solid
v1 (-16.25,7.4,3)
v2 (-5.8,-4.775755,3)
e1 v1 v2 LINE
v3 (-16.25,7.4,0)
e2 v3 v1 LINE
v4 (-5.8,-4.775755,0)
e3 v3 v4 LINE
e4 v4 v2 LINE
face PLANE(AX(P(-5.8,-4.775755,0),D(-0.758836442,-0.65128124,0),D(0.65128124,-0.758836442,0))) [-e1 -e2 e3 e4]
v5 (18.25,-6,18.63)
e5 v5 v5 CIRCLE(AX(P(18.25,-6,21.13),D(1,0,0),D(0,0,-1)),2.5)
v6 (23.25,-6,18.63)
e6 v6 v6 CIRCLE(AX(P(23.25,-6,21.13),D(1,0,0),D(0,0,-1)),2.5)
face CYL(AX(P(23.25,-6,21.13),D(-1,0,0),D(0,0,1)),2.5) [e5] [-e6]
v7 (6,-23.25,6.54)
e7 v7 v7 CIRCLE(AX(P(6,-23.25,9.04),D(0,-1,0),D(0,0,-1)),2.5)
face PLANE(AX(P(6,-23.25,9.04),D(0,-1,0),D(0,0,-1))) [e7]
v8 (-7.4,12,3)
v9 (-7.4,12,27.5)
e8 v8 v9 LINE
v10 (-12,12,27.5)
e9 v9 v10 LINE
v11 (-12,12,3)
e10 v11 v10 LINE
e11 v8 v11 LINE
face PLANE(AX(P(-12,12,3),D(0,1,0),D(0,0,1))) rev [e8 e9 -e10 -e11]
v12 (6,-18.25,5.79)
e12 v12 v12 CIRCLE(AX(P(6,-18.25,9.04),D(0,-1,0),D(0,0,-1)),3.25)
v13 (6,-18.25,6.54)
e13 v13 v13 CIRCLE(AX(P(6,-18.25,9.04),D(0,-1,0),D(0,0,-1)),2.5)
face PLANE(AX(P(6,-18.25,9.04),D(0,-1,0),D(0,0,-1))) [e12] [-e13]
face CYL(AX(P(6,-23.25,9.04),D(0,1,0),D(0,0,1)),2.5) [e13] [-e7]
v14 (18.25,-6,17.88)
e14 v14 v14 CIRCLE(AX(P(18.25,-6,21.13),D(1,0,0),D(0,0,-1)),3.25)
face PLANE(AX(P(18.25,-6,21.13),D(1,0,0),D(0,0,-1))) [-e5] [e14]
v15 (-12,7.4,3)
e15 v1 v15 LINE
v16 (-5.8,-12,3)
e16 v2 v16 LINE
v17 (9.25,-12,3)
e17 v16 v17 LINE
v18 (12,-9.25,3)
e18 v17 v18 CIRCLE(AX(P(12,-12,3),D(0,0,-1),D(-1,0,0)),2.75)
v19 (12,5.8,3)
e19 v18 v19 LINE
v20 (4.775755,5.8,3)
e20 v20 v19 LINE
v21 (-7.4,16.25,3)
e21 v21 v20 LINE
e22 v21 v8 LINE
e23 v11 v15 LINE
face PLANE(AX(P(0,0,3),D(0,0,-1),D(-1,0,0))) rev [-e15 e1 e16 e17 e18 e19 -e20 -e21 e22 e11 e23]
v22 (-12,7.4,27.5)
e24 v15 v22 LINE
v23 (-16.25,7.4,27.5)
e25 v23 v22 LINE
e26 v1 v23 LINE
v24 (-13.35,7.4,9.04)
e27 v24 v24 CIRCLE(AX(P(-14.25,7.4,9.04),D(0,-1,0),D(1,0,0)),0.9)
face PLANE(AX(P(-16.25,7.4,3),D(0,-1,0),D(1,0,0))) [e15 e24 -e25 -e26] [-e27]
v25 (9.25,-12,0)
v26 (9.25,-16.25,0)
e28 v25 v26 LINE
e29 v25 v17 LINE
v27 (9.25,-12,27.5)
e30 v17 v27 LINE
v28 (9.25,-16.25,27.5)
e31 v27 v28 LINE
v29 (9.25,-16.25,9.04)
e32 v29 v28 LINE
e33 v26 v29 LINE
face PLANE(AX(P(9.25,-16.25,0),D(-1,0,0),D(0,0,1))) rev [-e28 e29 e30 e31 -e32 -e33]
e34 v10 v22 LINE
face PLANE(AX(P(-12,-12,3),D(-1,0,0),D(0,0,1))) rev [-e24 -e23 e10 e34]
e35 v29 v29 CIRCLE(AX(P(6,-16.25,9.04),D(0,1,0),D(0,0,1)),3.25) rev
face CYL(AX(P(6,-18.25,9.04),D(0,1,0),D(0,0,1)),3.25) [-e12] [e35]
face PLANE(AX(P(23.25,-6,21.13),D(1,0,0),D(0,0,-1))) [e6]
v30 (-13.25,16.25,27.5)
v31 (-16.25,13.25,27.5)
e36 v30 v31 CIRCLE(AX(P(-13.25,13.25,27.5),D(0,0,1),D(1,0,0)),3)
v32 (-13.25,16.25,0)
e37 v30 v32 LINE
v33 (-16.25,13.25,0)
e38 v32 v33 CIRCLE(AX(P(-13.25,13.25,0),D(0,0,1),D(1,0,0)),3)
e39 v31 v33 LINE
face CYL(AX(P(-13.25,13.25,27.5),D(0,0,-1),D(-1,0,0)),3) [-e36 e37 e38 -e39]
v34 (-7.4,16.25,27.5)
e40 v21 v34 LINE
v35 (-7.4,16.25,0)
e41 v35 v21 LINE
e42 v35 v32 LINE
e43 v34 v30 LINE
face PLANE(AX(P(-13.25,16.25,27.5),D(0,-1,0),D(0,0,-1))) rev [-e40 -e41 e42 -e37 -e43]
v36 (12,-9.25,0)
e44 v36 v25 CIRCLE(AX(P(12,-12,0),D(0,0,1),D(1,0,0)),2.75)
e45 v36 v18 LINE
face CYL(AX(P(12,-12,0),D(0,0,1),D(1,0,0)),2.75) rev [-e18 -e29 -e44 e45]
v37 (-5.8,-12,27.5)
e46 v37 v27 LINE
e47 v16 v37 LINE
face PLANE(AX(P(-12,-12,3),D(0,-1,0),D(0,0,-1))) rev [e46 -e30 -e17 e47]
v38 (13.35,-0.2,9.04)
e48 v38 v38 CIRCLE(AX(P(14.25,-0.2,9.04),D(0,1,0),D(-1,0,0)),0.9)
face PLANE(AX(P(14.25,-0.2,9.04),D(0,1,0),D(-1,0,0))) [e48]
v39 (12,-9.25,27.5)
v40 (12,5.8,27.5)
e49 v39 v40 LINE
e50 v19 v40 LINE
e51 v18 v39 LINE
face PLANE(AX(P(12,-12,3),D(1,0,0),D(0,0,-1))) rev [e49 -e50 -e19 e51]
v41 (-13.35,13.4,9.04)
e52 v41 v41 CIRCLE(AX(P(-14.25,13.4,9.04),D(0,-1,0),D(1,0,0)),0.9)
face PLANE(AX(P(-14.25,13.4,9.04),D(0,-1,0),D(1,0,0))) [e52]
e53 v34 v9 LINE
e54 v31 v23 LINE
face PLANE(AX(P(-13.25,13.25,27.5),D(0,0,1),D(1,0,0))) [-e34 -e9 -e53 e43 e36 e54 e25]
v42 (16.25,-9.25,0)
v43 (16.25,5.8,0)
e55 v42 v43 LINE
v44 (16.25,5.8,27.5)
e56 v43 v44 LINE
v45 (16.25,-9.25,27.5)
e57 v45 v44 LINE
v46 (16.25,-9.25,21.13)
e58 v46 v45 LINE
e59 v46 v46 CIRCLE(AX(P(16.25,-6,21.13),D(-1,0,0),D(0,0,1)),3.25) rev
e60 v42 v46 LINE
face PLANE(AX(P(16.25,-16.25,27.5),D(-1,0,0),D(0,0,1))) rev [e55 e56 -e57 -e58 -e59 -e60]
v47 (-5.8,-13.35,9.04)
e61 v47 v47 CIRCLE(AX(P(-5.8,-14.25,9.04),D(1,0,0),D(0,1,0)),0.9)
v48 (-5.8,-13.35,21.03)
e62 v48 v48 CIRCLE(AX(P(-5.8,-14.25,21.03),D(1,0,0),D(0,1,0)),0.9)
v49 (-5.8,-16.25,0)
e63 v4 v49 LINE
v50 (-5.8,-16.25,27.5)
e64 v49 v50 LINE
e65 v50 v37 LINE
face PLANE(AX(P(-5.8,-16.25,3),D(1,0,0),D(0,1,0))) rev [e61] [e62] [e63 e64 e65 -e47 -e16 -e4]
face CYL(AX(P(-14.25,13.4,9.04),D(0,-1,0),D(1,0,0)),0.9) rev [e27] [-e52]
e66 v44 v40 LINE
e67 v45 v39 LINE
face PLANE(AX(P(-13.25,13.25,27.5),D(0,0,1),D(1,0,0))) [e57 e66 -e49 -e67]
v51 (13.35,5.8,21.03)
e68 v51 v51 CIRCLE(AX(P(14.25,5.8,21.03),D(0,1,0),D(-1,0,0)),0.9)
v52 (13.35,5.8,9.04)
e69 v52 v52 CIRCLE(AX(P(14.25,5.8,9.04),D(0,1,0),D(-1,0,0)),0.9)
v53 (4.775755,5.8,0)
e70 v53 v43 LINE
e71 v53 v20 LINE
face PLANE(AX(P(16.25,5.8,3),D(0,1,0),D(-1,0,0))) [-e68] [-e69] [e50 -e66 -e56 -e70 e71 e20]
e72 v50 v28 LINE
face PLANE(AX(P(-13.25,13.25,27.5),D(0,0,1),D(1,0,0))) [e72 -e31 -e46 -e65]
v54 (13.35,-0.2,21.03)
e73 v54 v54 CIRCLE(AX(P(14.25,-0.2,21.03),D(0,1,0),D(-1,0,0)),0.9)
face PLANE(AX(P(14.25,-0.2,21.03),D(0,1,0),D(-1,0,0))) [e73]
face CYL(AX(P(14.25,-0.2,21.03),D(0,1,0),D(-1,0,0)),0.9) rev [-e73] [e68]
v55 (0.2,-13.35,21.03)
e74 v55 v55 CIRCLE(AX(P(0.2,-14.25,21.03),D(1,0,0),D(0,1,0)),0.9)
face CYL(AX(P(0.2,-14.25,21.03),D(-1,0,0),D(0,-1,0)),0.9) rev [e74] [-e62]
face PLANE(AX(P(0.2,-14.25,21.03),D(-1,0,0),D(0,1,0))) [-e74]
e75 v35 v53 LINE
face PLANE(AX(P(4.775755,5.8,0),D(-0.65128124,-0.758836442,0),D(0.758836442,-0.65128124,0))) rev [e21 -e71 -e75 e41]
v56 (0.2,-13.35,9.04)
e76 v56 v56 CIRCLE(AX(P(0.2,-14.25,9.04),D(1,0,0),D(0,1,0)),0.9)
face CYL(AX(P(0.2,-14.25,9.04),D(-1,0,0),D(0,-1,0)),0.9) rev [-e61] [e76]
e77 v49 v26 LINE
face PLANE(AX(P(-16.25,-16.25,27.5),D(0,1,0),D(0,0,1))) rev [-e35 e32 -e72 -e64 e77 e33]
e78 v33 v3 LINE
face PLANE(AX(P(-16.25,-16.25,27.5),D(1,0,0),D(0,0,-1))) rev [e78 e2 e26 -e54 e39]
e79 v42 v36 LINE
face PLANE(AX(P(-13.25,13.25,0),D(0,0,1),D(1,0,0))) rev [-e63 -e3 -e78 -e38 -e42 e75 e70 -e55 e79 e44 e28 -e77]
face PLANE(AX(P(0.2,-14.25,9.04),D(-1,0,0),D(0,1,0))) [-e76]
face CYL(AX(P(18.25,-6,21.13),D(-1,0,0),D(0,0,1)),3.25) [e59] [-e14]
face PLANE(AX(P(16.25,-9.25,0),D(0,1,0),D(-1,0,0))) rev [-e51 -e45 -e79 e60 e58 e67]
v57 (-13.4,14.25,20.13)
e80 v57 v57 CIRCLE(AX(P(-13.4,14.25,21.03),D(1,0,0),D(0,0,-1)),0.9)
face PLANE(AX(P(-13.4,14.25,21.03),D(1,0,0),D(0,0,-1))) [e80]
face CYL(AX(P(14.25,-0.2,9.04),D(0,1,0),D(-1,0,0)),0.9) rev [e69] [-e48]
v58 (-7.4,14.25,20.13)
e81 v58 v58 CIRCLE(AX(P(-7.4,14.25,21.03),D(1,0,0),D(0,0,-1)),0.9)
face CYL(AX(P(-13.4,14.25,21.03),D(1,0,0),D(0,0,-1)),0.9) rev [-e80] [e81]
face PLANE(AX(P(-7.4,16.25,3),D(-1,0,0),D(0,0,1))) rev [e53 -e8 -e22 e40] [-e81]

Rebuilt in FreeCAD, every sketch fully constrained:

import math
import FreeCAD as App
import Part
import Sketcher

V = App.Vector

doc = App.newDocument("Part")
body = doc.addObject("PartDesign::Body", "Body")

# Sketch on XY plane
sketch1 = doc.addObject("Sketcher::SketchObject", "Sketch")
body.addObject(sketch1)
sketch1.AttachmentSupport = (doc.XY_Plane, [""])
sketch1.MapMode = "FlatFace"
sketch1.addGeometry([
    Part.LineSegment(V(-16.25, -16.25, 0), V(16.25, -16.25, 0)),  # 0
    Part.LineSegment(V(16.25, -16.25, 0), V(16.25, 16.25, 0)),  # 1
    Part.LineSegment(V(16.25, 16.25, 0), V(-13.25, 16.25, 0)),  # 2
    Part.ArcOfCircle(Part.Circle(V(-13.25, 13.25, 0), V(0, 0, 1), 3), math.radians(90), math.radians(180)),  # 3
    Part.LineSegment(V(-16.25, 13.25, 0), V(-16.25, -16.25, 0)),  # 4
], False)
sketch1.addConstraint([
    Sketcher.Constraint("Coincident", 0, 2, 1, 1),
    Sketcher.Constraint("Coincident", 1, 2, 2, 1),
    Sketcher.Constraint("Tangent", 2, 2, 3, 1),
    Sketcher.Constraint("Tangent", 3, 2, 4, 1),
    Sketcher.Constraint("Coincident", 4, 2, 0, 1),
    Sketcher.Constraint("Horizontal", 0),
    Sketcher.Constraint("Vertical", 1),
    Sketcher.Constraint("Horizontal", 2),
    Sketcher.Constraint("Vertical", 4),
    Sketcher.Constraint("Symmetric", 1, 2, 4, 2, -1, 1),
    Sketcher.Constraint("Equal", 0, 1),
    Sketcher.Constraint("Radius", 3, 3.0),
    Sketcher.Constraint("DistanceX", 0, 1, 0, 2, 32.5),
])
pad1 = doc.addObject("PartDesign::Pad", "Pad")
body.addObject(pad1)
pad1.Profile = sketch1
pad1.Length = 27.5

# Sketch on XY plane
sketch2 = doc.addObject("Sketcher::SketchObject", "Sketch001")
body.addObject(sketch2)
sketch2.AttachmentSupport = (doc.XY_Plane, [""])
sketch2.MapMode = "FlatFace"
sketch2.AttachmentOffset = App.Placement(V(0, 0, 27.5), App.Rotation())
sketch2.addGeometry([
    Part.LineSegment(V(-12, 12, 0), V(-12, -12, 0)),
    Part.LineSegment(V(-12, -12, 0), V(12, -12, 0)),
    Part.LineSegment(V(12, -12, 0), V(12, 12, 0)),
    Part.LineSegment(V(12, 12, 0), V(-12, 12, 0)),
], False)
sketch2.addConstraint([
    Sketcher.Constraint("Coincident", 0, 2, 1, 1),
    Sketcher.Constraint("Coincident", 1, 2, 2, 1),
    Sketcher.Constraint("Coincident", 2, 2, 3, 1),
    Sketcher.Constraint("Coincident", 3, 2, 0, 1),
    Sketcher.Constraint("Vertical", 0),
    Sketcher.Constraint("Horizontal", 1),
    Sketcher.Constraint("Vertical", 2),
    Sketcher.Constraint("Horizontal", 3),
    Sketcher.Constraint("Symmetric", 0, 2, 2, 2, -1, 1),
    Sketcher.Constraint("Equal", 3, 0),
    Sketcher.Constraint("DistanceX", 1, 1, 1, 2, 24.0),
])
pocket1 = doc.addObject("PartDesign::Pocket", "Pocket")
body.addObject(pocket1)
pocket1.Profile = sketch2
pocket1.Length = 24.5

# Sketch on XY plane
sketch3 = doc.addObject("Sketcher::SketchObject", "Sketch002")
body.addObject(sketch3)
sketch3.AttachmentSupport = (doc.XY_Plane, [""])
sketch3.MapMode = "FlatFace"
sketch3.AttachmentOffset = App.Placement(V(0, 0, 27.5), App.Rotation())
sketch3.addGeometry([
    Part.LineSegment(V(16.25, 16.25, 0), V(-7.4, 16.25, 0)),  # 0
    Part.LineSegment(V(-7.4, 16.25, 0), V(-7.4, 12, 0)),  # 1
    Part.LineSegment(V(-7.4, 12, 0), V(-0.175, 5.8, 0)),  # 2
    Part.LineSegment(V(-0.175, 5.8, 0), V(16.25, 5.8, 0)),  # 3
    Part.LineSegment(V(16.25, 5.8, 0), V(16.25, 16.25, 0)),  # 4
], False)
sketch3.addConstraint([
    Sketcher.Constraint("Coincident", 0, 2, 1, 1),
    Sketcher.Constraint("Coincident", 1, 2, 2, 1),
    Sketcher.Constraint("Coincident", 2, 2, 3, 1),
    Sketcher.Constraint("Coincident", 3, 2, 4, 1),
    Sketcher.Constraint("Coincident", 4, 2, 0, 1),
    Sketcher.Constraint("Horizontal", 0),
    Sketcher.Constraint("Vertical", 1),
    Sketcher.Constraint("Horizontal", 3),
    Sketcher.Constraint("Vertical", 4),
    Sketcher.Constraint("DistanceY", -1, 1, 1, 2, 12.0),
    Sketcher.Constraint("DistanceX", 0, 2, 0, 1, 23.65),
    Sketcher.Constraint("DistanceY", 1, 2, 1, 1, 4.25),
    Sketcher.Constraint("DistanceY", 4, 1, 4, 2, 10.45),
    Sketcher.Constraint("DistanceX", 0, 2, -1, 1, 7.4),
    Sketcher.Constraint("DistanceX", 3, 1, 3, 2, 16.425),
])
pocket2 = doc.addObject("PartDesign::Pocket", "Pocket001")
body.addObject(pocket2)
pocket2.Profile = sketch3
pocket2.Length = 24.5
doc.recompute()

datumplane = doc.addObject("PartDesign::Plane", "DatumPlane")
body.addObject(datumplane)
datumplane.Placement = App.Placement(V(0, 0, 0), App.Rotation(V(0.707106781, -0.707106781, 0), V(0, 0, -1), V(0.707106781, 0.707106781, 0), "ZXY"))
mirrored = doc.addObject("PartDesign::Mirrored", "Mirrored")
body.addObject(mirrored)
mirrored.Originals = [pocket2]
mirrored.MirrorPlane = (datumplane, [""])
body.Tip = mirrored

# Sketch on XZ plane
sketch4 = doc.addObject("Sketcher::SketchObject", "Sketch003")
body.addObject(sketch4)
sketch4.AttachmentSupport = (doc.XZ_Plane, [""])
sketch4.MapMode = "FlatFace"
sketch4.AttachmentOffset = App.Placement(V(0, 0, 16.25), App.Rotation())
sketch4.addGeometry(Part.Circle(V(6, 9.04, 0), V(0, 0, 1), 3.25), False)
sketch4.addConstraint([
    Sketcher.Constraint("Diameter", 0, 6.5),
    Sketcher.Constraint("DistanceX", -1, 1, 0, 3, 6.0),
    Sketcher.Constraint("DistanceY", -1, 1, 0, 3, 9.04),
])
pad2 = doc.addObject("PartDesign::Pad", "Pad001")
body.addObject(pad2)
pad2.Profile = sketch4
pad2.Length = 2

# Sketch on YZ plane
sketch5 = doc.addObject("Sketcher::SketchObject", "Sketch004")
body.addObject(sketch5)
sketch5.AttachmentSupport = (doc.YZ_Plane, [""])
sketch5.MapMode = "FlatFace"
sketch5.AttachmentOffset = App.Placement(V(0, 0, 16.25), App.Rotation())
sketch5.addGeometry(Part.Circle(V(-6, 21.13, 0), V(0, 0, 1), 3.25), False)
sketch5.addConstraint([
    Sketcher.Constraint("Diameter", 0, 6.5),
    Sketcher.Constraint("DistanceX", 0, 3, -1, 1, 6.0),
    Sketcher.Constraint("DistanceY", -1, 1, 0, 3, 21.13),
])
pad3 = doc.addObject("PartDesign::Pad", "Pad002")
body.addObject(pad3)
pad3.Profile = sketch5
pad3.Length = 2

# Sketch on XY plane
sketch6 = doc.addObject("Sketcher::SketchObject", "Sketch005")
body.addObject(sketch6)
sketch6.AttachmentSupport = (doc.XY_Plane, [""])
sketch6.MapMode = "FlatFace"
sketch6.AttachmentOffset = App.Placement(V(0, 0, 27.5), App.Rotation())
sketch6.addGeometry([
    Part.LineSegment(V(9.25, -16.25, 0), V(16.25, -16.25, 0)),  # 0
    Part.LineSegment(V(16.25, -16.25, 0), V(16.25, -9.25, 0)),  # 1
    Part.LineSegment(V(16.25, -9.25, 0), V(12, -9.25, 0)),  # 2
    Part.ArcOfCircle(Part.Circle(V(12, -12, 0), V(0, 0, 1), 2.75), math.radians(90), math.radians(180)),  # 3
    Part.LineSegment(V(9.25, -12, 0), V(9.25, -16.25, 0)),  # 4
], False)
sketch6.addConstraint([
    Sketcher.Constraint("Coincident", 0, 2, 1, 1),
    Sketcher.Constraint("Coincident", 1, 2, 2, 1),
    Sketcher.Constraint("Tangent", 2, 2, 3, 1),
    Sketcher.Constraint("Tangent", 3, 2, 4, 1),
    Sketcher.Constraint("Coincident", 4, 2, 0, 1),
    Sketcher.Constraint("Horizontal", 0),
    Sketcher.Constraint("Vertical", 1),
    Sketcher.Constraint("Horizontal", 2),
    Sketcher.Constraint("Vertical", 4),
    Sketcher.Constraint("Equal", 0, 1),
    Sketcher.Constraint("DistanceX", 0, 1, 0, 2, 7.0),
    Sketcher.Constraint("Radius", 3, 2.75),
    Sketcher.Constraint("DistanceX", -1, 1, 3, 3, 12.0),
    Sketcher.Constraint("DistanceY", 3, 3, -1, 1, 12.0),
])
pocket3 = doc.addObject("PartDesign::Pocket", "Pocket002")
body.addObject(pocket3)
pocket3.Profile = sketch6
pocket3.Length = 27.5

# Sketch on XY plane
sketch7 = doc.addObject("Sketcher::SketchObject", "Sketch006")
body.addObject(sketch7)
sketch7.AttachmentSupport = (doc.XY_Plane, [""])
sketch7.MapMode = "FlatFace"
sketch7.AttachmentOffset = App.Placement(V(0, 0, 3), App.Rotation())
sketch7.addGeometry([
    Part.LineSegment(V(4.775755, 5.8, 0), V(16.25, 5.8, 0)),
    Part.LineSegment(V(16.25, 5.8, 0), V(16.25, 16.25, 0)),
    Part.LineSegment(V(16.25, 16.25, 0), V(-7.4, 16.25, 0)),
    Part.LineSegment(V(-7.4, 16.25, 0), V(4.775755, 5.8, 0)),
], False)
sketch7.addConstraint([
    Sketcher.Constraint("Coincident", 0, 2, 1, 1),
    Sketcher.Constraint("Coincident", 1, 2, 2, 1),
    Sketcher.Constraint("Coincident", 2, 2, 3, 1),
    Sketcher.Constraint("Coincident", 3, 2, 0, 1),
    Sketcher.Constraint("Horizontal", 0),
    Sketcher.Constraint("Vertical", 1),
    Sketcher.Constraint("Horizontal", 2),
    Sketcher.Constraint("DistanceX", 2, 2, 2, 1, 23.65),
    Sketcher.Constraint("DistanceY", 1, 1, 1, 2, 10.45),
    Sketcher.Constraint("DistanceY", -1, 1, 0, 2, 5.8),
    Sketcher.Constraint("DistanceX", 2, 2, -1, 1, 7.4),
    Sketcher.Constraint("DistanceX", 0, 1, 0, 2, 11.474245),
])
pocket4 = doc.addObject("PartDesign::Pocket", "Pocket003")
body.addObject(pocket4)
pocket4.Profile = sketch7
pocket4.Length = 3
doc.recompute()

datumplane2 = doc.addObject("PartDesign::Plane", "DatumPlane001")
body.addObject(datumplane2)
datumplane2.Placement = App.Placement(V(0, 0, 0), App.Rotation(V(0.707106781, -0.707106781, 0), V(0, 0, -1), V(0.707106781, 0.707106781, 0), "ZXY"))
mirrored2 = doc.addObject("PartDesign::Mirrored", "Mirrored001")
body.addObject(mirrored2)
mirrored2.Originals = [pocket4]
mirrored2.MirrorPlane = (datumplane2, [""])
body.Tip = mirrored2

# Sketch on XZ plane
sketch8 = doc.addObject("Sketcher::SketchObject", "Sketch007")
body.addObject(sketch8)
sketch8.AttachmentSupport = (doc.XZ_Plane, [""])
sketch8.MapMode = "FlatFace"
sketch8.AttachmentOffset = App.Placement(V(0, 0, -5.8), App.Rotation())
sketch8.addGeometry([
    Part.Circle(V(14.25, 9.04, 0), V(0, 0, 1), 0.9),
    Part.Circle(V(14.25, 21.03, 0), V(0, 0, 1), 0.9),
], False)
sketch8.addConstraint([
    Sketcher.Constraint("Equal", 0, 1),
    Sketcher.Constraint("Vertical", 0, 3, 1, 3),
    Sketcher.Constraint("Diameter", 0, 1.8),
    Sketcher.Constraint("DistanceX", -1, 1, 0, 3, 14.25),
    Sketcher.Constraint("DistanceY", -1, 1, 0, 3, 9.04),
    Sketcher.Constraint("DistanceY", -1, 1, 1, 3, 21.03),
])
pocket5 = doc.addObject("PartDesign::Pocket", "Pocket004")
body.addObject(pocket5)
pocket5.Profile = sketch8
pocket5.Length = 6
pocket5.Reversed = True
doc.recompute()

datumplane3 = doc.addObject("PartDesign::Plane", "DatumPlane002")
body.addObject(datumplane3)
datumplane3.Placement = App.Placement(V(0, 0, 0), App.Rotation(V(0.707106781, -0.707106781, 0), V(0, 0, -1), V(0.707106781, 0.707106781, 0), "ZXY"))
mirrored3 = doc.addObject("PartDesign::Mirrored", "Mirrored002")
body.addObject(mirrored3)
mirrored3.Originals = [pocket5]
mirrored3.MirrorPlane = (datumplane3, [""])
body.Tip = mirrored3

# Sketch on YZ plane
sketch9 = doc.addObject("Sketcher::SketchObject", "Sketch008")
body.addObject(sketch9)
sketch9.AttachmentSupport = (doc.YZ_Plane, [""])
sketch9.MapMode = "FlatFace"
sketch9.AttachmentOffset = App.Placement(V(0, 0, 18.25), App.Rotation())
sketch9.addGeometry(Part.Circle(V(-6, 21.13, 0), V(0, 0, 1), 2.5), False)
sketch9.addConstraint([
    Sketcher.Constraint("Diameter", 0, 5.0),
    Sketcher.Constraint("DistanceX", 0, 3, -1, 1, 6.0),
    Sketcher.Constraint("DistanceY", -1, 1, 0, 3, 21.13),
])
pad4 = doc.addObject("PartDesign::Pad", "Pad003")
body.addObject(pad4)
pad4.Profile = sketch9
pad4.Length = 5

# Sketch on XZ plane
sketch10 = doc.addObject("Sketcher::SketchObject", "Sketch009")
body.addObject(sketch10)
sketch10.AttachmentSupport = (doc.XZ_Plane, [""])
sketch10.MapMode = "FlatFace"
sketch10.AttachmentOffset = App.Placement(V(0, 0, 18.25), App.Rotation())
sketch10.addGeometry(Part.Circle(V(6, 9.04, 0), V(0, 0, 1), 2.5), False)
sketch10.addConstraint([
    Sketcher.Constraint("Diameter", 0, 5.0),
    Sketcher.Constraint("DistanceX", -1, 1, 0, 3, 6.0),
    Sketcher.Constraint("DistanceY", -1, 1, 0, 3, 9.04),
])
pad5 = doc.addObject("PartDesign::Pad", "Pad004")
body.addObject(pad5)
pad5.Profile = sketch10
pad5.Length = 5

# Sketch on YZ plane
sketch11 = doc.addObject("Sketcher::SketchObject", "Sketch010")
body.addObject(sketch11)
sketch11.AttachmentSupport = (doc.YZ_Plane, [""])
sketch11.MapMode = "FlatFace"
sketch11.AttachmentOffset = App.Placement(V(0, 0, -7.4), App.Rotation())
sketch11.addGeometry(Part.Circle(V(14.25, 21.03, 0), V(0, 0, 1), 0.9), False)
sketch11.addConstraint([
    Sketcher.Constraint("Diameter", 0, 1.8),
    Sketcher.Constraint("DistanceX", -1, 1, 0, 3, 14.25),
    Sketcher.Constraint("DistanceY", -1, 1, 0, 3, 21.03),
])
pocket6 = doc.addObject("PartDesign::Pocket", "Pocket005")
body.addObject(pocket6)
pocket6.Profile = sketch11
pocket6.Length = 6

# Sketch on XZ plane
sketch12 = doc.addObject("Sketcher::SketchObject", "Sketch011")
body.addObject(sketch12)
sketch12.AttachmentSupport = (doc.XZ_Plane, [""])
sketch12.MapMode = "FlatFace"
sketch12.AttachmentOffset = App.Placement(V(0, 0, -7.4), App.Rotation())
sketch12.addGeometry(Part.Circle(V(-14.25, 9.04, 0), V(0, 0, 1), 0.9), False)
sketch12.addConstraint([
    Sketcher.Constraint("Diameter", 0, 1.8),
    Sketcher.Constraint("DistanceX", 0, 3, -1, 1, 14.25),
    Sketcher.Constraint("DistanceY", -1, 1, 0, 3, 9.04),
])
pocket7 = doc.addObject("PartDesign::Pocket", "Pocket006")
body.addObject(pocket7)
pocket7.Profile = sketch12
pocket7.Length = 6

doc.recompute()
